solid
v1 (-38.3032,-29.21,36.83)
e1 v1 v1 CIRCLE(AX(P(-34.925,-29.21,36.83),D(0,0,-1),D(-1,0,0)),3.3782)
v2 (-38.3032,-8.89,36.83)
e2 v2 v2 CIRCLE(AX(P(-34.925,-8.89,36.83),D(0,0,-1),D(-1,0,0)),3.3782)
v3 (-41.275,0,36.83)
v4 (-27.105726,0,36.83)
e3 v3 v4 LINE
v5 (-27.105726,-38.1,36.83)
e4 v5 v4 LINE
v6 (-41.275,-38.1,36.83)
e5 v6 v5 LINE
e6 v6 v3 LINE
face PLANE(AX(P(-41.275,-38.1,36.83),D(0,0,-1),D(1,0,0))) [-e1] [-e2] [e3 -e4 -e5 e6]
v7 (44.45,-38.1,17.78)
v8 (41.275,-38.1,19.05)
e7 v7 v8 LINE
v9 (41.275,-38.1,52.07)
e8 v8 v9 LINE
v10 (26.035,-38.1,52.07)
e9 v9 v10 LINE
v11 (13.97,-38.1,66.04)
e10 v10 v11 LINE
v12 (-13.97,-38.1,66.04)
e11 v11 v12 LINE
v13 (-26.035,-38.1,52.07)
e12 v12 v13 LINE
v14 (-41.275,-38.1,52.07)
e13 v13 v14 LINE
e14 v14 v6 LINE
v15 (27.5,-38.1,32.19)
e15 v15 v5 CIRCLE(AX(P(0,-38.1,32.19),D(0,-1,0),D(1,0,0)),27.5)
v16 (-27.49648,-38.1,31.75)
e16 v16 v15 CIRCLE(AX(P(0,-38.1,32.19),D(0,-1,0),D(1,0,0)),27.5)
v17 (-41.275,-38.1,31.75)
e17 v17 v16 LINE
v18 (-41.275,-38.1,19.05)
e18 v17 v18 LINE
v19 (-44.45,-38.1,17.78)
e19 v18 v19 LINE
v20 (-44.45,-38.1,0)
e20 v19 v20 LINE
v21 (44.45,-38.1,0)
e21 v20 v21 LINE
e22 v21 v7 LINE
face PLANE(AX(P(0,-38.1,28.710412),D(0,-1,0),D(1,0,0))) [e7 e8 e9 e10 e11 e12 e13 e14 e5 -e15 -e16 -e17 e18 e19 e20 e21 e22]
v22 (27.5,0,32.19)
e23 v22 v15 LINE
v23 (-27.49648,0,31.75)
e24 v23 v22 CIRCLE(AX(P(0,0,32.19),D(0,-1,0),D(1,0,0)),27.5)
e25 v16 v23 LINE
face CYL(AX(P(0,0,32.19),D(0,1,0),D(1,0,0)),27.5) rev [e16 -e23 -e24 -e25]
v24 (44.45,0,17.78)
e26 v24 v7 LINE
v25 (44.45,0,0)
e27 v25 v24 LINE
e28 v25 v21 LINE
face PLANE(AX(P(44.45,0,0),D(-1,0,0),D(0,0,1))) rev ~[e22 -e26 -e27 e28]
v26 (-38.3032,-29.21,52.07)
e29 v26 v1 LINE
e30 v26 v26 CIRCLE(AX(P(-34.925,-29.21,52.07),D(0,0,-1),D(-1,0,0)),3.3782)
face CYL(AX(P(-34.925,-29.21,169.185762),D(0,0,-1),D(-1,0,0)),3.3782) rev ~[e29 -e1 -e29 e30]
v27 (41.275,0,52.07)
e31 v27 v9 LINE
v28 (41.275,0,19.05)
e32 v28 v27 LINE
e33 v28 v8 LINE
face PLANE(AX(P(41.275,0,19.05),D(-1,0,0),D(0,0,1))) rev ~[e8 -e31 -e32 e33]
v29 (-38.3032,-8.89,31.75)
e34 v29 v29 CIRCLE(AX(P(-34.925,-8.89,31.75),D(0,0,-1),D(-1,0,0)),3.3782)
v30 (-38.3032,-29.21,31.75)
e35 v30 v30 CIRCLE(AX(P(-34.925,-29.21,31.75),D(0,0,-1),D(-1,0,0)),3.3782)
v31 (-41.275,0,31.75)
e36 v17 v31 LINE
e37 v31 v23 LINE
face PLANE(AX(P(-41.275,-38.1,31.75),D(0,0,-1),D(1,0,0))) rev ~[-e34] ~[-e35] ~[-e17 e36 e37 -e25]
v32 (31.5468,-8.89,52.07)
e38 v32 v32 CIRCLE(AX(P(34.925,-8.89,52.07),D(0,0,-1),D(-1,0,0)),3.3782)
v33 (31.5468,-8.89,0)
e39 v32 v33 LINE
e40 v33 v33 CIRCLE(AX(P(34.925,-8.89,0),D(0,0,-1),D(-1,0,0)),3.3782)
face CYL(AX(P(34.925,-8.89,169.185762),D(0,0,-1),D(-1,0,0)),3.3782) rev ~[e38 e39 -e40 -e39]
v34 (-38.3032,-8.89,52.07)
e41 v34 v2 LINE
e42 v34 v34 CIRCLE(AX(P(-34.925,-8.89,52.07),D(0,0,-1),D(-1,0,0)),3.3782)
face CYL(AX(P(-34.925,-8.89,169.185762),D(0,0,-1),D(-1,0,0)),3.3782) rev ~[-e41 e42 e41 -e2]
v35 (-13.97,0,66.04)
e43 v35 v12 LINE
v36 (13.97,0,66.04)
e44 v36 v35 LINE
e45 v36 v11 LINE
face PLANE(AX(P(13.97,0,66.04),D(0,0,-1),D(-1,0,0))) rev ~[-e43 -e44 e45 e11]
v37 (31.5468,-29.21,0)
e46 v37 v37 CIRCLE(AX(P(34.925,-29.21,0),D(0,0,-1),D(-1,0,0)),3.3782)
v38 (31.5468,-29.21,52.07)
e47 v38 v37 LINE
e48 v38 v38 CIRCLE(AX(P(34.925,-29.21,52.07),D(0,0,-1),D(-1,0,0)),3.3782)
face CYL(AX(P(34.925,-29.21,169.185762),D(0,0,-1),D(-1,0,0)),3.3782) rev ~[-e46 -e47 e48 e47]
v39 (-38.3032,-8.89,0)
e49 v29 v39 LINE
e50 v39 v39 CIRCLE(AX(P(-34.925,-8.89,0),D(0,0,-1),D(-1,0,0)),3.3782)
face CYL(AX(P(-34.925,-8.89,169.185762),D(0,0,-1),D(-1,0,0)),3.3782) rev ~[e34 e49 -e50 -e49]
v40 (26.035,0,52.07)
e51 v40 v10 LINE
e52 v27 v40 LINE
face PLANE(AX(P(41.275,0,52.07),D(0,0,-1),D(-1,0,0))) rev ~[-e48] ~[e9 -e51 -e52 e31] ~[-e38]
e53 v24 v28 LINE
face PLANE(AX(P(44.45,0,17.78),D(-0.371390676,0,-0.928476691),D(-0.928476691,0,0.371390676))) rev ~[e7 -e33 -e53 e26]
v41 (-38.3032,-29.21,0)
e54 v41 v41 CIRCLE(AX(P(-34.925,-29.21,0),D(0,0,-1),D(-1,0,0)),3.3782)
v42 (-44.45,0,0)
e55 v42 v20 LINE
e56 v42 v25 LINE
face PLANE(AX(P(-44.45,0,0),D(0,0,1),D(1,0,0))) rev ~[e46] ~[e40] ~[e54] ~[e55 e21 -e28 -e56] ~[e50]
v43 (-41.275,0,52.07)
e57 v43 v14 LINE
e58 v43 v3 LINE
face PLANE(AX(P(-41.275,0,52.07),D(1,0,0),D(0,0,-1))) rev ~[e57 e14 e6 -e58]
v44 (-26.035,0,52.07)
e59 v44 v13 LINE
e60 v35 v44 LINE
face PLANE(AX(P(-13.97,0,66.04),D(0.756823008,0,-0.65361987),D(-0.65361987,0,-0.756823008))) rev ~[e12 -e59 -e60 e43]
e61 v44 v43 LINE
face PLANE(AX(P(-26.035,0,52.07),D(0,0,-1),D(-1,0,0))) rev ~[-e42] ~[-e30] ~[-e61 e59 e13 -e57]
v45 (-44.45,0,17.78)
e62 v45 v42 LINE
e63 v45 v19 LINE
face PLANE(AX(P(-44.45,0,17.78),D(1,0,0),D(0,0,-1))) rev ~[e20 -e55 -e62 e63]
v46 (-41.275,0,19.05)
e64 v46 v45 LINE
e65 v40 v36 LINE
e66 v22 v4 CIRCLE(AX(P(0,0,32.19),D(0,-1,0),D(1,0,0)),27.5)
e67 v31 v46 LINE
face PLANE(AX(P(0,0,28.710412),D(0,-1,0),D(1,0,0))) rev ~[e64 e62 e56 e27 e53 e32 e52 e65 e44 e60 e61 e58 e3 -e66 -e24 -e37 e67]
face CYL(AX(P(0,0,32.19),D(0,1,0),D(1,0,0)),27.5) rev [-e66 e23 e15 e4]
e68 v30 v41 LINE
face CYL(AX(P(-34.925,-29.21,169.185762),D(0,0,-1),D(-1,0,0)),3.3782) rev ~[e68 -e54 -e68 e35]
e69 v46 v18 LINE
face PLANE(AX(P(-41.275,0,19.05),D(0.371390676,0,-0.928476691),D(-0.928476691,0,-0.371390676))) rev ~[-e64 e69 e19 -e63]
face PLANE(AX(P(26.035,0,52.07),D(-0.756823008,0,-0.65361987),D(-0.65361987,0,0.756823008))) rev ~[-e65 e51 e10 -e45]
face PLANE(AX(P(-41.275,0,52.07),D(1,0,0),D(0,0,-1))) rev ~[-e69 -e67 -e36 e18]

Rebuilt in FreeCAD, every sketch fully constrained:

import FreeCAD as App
import Part
import Sketcher

V = App.Vector
Q = App.Units.Quantity

doc = App.newDocument("Part")
body = doc.addObject("PartDesign::Body", "Body")

# Sketch on XZ plane
sketch1 = doc.addObject("Sketcher::SketchObject", "Sketch")
body.addObject(sketch1)
sketch1.AttachmentSupport = (doc.XZ_Plane, [""])
sketch1.MapMode = "FlatFace"
sketch1.addGeometry([
    Part.LineSegment(V(-44.5, 0, 0), V(44.5, 0, 0)),  # 0
    Part.LineSegment(V(44.5, 0, 0), V(44.5, 17.8, 0)),  # 1
    Part.LineSegment(V(44.5, 17.8, 0), V(41.3, 19.1, 0)),  # 2
    Part.LineSegment(V(41.3, 19.1, 0), V(41.3, 52.1, 0)),  # 3
    Part.LineSegment(V(41.3, 52.1, 0), V(26, 52.1, 0)),  # 4
    Part.LineSegment(V(26, 52.1, 0), V(14, 66, 0)),  # 5
    Part.LineSegment(V(14, 66, 0), V(-14, 66, 0)),  # 6
    Part.LineSegment(V(-14, 66, 0), V(-26, 52.1, 0)),  # 7
    Part.LineSegment(V(-26, 52.1, 0), V(-41.3, 52.1, 0)),  # 8
    Part.LineSegment(V(-41.3, 52.1, 0), V(-41.3, 19.1, 0)),  # 9
    Part.LineSegment(V(-41.3, 19.1, 0), V(-44.5, 17.8, 0)),  # 10
    Part.LineSegment(V(-44.5, 17.8, 0), V(-44.5, 0, 0)),  # 11
    Part.Circle(V(0, 32.2, 0), V(0, 0, 1), 27.5),  # 12
], False)
sketch1.addConstraint([
    Sketcher.Constraint("Coincident", 0, 2, 1, 1),
    Sketcher.Constraint("Coincident", 1, 2, 2, 1),
    Sketcher.Constraint("Coincident", 2, 2, 3, 1),
    Sketcher.Constraint("Coincident", 3, 2, 4, 1),
    Sketcher.Constraint("Coincident", 4, 2, 5, 1),
    Sketcher.Constraint("Coincident", 5, 2, 6, 1),
    Sketcher.Constraint("Coincident", 6, 2, 7, 1),
    Sketcher.Constraint("Coincident", 7, 2, 8, 1),
    Sketcher.Constraint("Coincident", 8, 2, 9, 1),
    Sketcher.Constraint("Coincident", 9, 2, 10, 1),
    Sketcher.Constraint("Coincident", 10, 2, 11, 1),
    Sketcher.Constraint("Coincident", 11, 2, 0, 1),
    Sketcher.Constraint("Horizontal", 0),
    Sketcher.Constraint("Vertical", 1),
    Sketcher.Constraint("Vertical", 3),
    Sketcher.Constraint("Horizontal", 4),
    Sketcher.Constraint("Horizontal", 6),
    Sketcher.Constraint("Horizontal", 8),
    Sketcher.Constraint("Vertical", 9),
    Sketcher.Constraint("Vertical", 11),
    Sketcher.Constraint("Symmetric", 0, 2, 11, 2, -1, 1),
    Sketcher.Constraint("Symmetric", 4, 2, 7, 2, -2),
    Sketcher.Constraint("Symmetric", 2, 2, 9, 2, -2),
    Sketcher.Constraint("PointOnObject", 12, 3, -2),
    Sketcher.Constraint("Horizontal", 1, 2, 10, 2),
    Sketcher.Constraint("Equal", 5, 7),
    Sketcher.Constraint("DistanceX", 0, 1, 0, 2, Q("3.5 in")),
    Sketcher.Constraint("DistanceX", 4, 2, 4, 1, Q("0.6 in")),
    Sketcher.Constraint("DistanceX", 6, 2, 6, 1, Q("1.1 in")),
    Sketcher.Constraint("DistanceY", 1, 1, 1, 2, Q("0.7 in")),
    Sketcher.Constraint("DistanceY", 3, 1, 3, 2, Q("1.3 in")),
    Sketcher.Constraint("DistanceY", -1, 1, 5, 2, Q("2.6 in")),
    Sketcher.Constraint("Diameter", 12, Q("55 mm")),
    Sketcher.Constraint("DistanceY", -1, 1, 2, 2, Q("0.75 in")),
    Sketcher.Constraint("DistanceX", 7, 2, 4, 2, Q("2.05 in")),
    Sketcher.Constraint("DistanceY", -1, 1, 12, 3, Q("32.19 mm")),
])
pad1 = doc.addObject("PartDesign::Pad", "Pad")
body.addObject(pad1)
pad1.Profile = sketch1
pad1.Length = Q("1.5 in")

# Sketch on XZ plane
sketch2 = doc.addObject("Sketcher::SketchObject", "Sketch001")
body.addObject(sketch2)
sketch2.AttachmentSupport = (doc.XZ_Plane, [""])
sketch2.MapMode = "FlatFace"
sketch2.AttachmentOffset = App.Placement(V(0, 0, 1.5 * 25.4), App.Rotation())
sketch2.addGeometry([
    Part.LineSegment(V(-41, 37, 0), V(-41, 32, 0)),
    Part.LineSegment(V(-41, 32, 0), V(-22, 32, 0)),
    Part.LineSegment(V(-22, 32, 0), V(-22, 37, 0)),
    Part.LineSegment(V(-22, 37, 0), V(-41, 37, 0)),
], False)
sketch2.addConstraint([
    Sketcher.Constraint("Coincident", 0, 2, 1, 1),
    Sketcher.Constraint("Coincident", 1, 2, 2, 1),
    Sketcher.Constraint("Coincident", 2, 2, 3, 1),
    Sketcher.Constraint("Coincident", 3, 2, 0, 1),
    Sketcher.Constraint("Vertical", 0),
    Sketcher.Constraint("Horizontal", 1),
    Sketcher.Constraint("Vertical", 2),
    Sketcher.Constraint("Horizontal", 3),
    Sketcher.Constraint("DistanceY", 0, 2, 0, 1, Q("0.2 in")),
    Sketcher.Constraint("DistanceX", 1, 1, 1, 2, Q("0.75 in")),
    Sketcher.Constraint("DistanceY", -1, 1, 0, 2, Q("1.25 in")),
    Sketcher.Constraint("DistanceX", 0, 2, -1, 1, Q("1.625 in")),
])
pocket1 = doc.addObject("PartDesign::Pocket", "Pocket")
body.addObject(pocket1)
pocket1.Profile = sketch2
pocket1.Type = "ThroughAll"

# Sketch on XY plane
sketch3 = doc.addObject("Sketcher::SketchObject", "Sketch002")
body.addObject(sketch3)
sketch3.AttachmentSupport = (doc.XY_Plane, [""])
sketch3.MapMode = "FlatFace"
sketch3.AttachmentOffset = App.Placement(V(0, 0, 2.05 * 25.4), App.Rotation())
sketch3.addGeometry([
    Part.Circle(V(-34.9, -8.9, 0), V(0, 0, 1), 3.4),
    Part.Circle(V(-34.9, -29.2, 0), V(0, 0, 1), 3.4),
    Part.Circle(V(34.9, -8.9, 0), V(0, 0, 1), 3.4),
    Part.Circle(V(34.9, -29.2, 0), V(0, 0, 1), 3.4),
], False)
sketch3.addConstraint([
    Sketcher.Constraint("Equal", 0, 1),
    Sketcher.Constraint("Equal", 1, 2),
    Sketcher.Constraint("Equal", 2, 3),
    Sketcher.Constraint("Symmetric", 0, 3, 2, 3, -2),
    Sketcher.Constraint("Symmetric", 1, 3, 3, 3, -2),
    Sketcher.Constraint("Vertical", 0, 3, 1, 3),
    Sketcher.Constraint("Diameter", 0, Q("0.266 in")),
    Sketcher.Constraint("DistanceY", 1, 3, 0, 3, Q("0.8 in")),
    Sketcher.Constraint("DistanceY", 0, 3, -1, 1, Q("0.35 in")),
    Sketcher.Constraint("DistanceX", 0, 3, 2, 3, Q("2.75 in")),
])
doc.recompute()
hole = doc.addObject("PartDesign::Hole", "Hole")
body.addObject(hole)
hole.Profile = sketch3
hole.ThreadType = "None"
hole.Diameter = Q("0.266 in")
hole.DepthType = "ThroughAll"

doc.recompute()
